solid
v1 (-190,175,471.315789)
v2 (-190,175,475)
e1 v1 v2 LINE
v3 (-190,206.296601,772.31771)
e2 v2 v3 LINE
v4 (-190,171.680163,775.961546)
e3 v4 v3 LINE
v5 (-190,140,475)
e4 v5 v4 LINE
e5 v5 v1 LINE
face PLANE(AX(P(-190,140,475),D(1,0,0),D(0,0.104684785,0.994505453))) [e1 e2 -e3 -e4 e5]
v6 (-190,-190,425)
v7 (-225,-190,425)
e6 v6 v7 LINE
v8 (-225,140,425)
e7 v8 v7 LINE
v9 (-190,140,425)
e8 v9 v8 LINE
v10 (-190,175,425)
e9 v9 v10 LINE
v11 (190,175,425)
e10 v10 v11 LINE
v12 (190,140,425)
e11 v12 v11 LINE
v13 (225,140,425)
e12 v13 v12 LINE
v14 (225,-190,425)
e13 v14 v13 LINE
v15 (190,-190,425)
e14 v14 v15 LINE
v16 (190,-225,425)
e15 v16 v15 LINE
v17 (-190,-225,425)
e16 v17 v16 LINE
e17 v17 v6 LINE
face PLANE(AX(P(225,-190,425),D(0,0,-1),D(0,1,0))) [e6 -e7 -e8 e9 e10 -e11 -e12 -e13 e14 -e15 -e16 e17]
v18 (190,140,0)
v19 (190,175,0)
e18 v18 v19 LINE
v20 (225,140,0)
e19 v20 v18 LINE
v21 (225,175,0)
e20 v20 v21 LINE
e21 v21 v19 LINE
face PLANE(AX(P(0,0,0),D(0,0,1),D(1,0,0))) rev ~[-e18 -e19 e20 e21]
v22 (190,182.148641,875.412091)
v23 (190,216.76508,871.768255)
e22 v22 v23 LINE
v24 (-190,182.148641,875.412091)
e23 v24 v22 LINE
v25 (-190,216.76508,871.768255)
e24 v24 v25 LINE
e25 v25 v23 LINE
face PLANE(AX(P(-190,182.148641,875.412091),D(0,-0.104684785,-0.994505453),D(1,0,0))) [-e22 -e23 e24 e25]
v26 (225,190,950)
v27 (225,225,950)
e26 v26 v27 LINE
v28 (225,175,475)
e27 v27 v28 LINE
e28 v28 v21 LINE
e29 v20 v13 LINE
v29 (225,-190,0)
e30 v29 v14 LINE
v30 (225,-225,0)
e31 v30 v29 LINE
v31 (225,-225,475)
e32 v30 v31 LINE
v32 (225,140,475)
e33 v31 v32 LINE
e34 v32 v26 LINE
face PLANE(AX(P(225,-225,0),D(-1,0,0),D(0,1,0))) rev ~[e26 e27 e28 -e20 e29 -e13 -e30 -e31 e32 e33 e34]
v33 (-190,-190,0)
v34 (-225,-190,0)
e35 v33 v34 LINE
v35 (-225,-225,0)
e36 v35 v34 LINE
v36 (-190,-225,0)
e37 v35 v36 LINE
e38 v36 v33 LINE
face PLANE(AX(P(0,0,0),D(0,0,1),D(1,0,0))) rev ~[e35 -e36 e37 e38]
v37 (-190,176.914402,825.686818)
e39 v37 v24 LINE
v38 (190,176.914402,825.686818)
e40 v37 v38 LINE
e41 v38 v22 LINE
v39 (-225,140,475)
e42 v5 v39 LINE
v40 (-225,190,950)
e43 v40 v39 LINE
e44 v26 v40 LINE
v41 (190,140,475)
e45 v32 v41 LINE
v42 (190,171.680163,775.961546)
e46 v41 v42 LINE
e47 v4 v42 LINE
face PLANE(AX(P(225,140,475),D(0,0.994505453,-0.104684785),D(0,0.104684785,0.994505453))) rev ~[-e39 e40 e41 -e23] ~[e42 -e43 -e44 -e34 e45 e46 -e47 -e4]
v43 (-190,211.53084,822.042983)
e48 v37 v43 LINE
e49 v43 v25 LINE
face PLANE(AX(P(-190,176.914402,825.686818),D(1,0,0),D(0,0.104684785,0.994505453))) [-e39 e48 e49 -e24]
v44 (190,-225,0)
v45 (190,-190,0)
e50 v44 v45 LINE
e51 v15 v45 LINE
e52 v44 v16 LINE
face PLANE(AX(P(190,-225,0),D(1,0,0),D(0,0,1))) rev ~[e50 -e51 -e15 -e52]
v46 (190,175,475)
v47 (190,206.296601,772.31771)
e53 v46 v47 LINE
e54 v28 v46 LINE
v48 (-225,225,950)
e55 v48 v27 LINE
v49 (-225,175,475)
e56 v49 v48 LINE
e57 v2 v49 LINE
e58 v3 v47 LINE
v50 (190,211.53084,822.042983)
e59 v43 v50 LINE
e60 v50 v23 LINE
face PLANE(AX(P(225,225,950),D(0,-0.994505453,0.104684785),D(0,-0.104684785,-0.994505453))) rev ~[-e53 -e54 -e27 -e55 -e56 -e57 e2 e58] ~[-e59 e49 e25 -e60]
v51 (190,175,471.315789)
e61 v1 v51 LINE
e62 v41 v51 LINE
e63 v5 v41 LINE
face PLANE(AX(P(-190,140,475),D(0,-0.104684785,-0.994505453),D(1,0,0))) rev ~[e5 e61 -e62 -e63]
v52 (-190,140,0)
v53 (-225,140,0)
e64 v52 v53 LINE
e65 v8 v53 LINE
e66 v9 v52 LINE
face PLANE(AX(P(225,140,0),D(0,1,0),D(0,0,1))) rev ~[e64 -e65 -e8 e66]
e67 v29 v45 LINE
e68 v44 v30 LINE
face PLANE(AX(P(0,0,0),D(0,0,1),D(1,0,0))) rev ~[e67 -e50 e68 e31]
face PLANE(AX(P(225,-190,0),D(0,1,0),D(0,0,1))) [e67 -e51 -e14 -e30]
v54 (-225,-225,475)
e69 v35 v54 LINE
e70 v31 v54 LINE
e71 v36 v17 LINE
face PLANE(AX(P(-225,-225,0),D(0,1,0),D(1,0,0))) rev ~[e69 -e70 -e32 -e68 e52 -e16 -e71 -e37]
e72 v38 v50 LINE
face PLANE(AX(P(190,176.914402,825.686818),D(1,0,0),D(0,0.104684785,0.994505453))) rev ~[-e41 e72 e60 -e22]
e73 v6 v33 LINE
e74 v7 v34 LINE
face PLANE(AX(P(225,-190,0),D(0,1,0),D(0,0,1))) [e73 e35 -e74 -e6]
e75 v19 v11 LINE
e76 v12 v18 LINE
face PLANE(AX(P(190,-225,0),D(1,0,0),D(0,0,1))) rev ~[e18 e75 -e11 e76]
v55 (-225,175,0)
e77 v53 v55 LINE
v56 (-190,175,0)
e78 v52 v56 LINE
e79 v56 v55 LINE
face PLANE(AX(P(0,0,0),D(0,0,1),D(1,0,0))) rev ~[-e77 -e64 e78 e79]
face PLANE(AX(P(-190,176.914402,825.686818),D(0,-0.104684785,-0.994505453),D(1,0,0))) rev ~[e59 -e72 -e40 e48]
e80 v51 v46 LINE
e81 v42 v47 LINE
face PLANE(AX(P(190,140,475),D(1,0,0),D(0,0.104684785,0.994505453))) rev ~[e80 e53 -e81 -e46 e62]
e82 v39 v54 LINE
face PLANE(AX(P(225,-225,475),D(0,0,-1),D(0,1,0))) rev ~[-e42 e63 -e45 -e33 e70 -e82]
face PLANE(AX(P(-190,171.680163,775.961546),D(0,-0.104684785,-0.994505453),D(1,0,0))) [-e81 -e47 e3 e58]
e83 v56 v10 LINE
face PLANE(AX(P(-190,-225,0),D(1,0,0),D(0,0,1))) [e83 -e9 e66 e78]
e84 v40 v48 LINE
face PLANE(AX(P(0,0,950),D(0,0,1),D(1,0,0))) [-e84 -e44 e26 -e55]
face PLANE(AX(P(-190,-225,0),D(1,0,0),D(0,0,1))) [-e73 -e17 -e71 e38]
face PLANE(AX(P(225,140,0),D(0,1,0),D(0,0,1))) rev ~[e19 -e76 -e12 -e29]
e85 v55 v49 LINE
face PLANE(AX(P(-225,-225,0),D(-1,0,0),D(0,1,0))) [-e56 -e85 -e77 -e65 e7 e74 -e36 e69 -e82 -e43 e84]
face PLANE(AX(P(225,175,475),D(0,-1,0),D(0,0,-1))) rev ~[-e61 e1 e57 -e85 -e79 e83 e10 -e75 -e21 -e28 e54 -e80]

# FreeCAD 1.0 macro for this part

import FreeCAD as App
import Part
import Sketcher
from FreeCAD import Vector
Q = App.Units.Quantity

doc = App.newDocument("Part")
body = doc.addObject("PartDesign::Body", "Body")

sketch1 = body.newObject("Sketcher::SketchObject", "Sketch")
sketch1.AttachmentSupport = (doc.getObject("XY_Plane"), [""])
sketch1.MapMode = "FlatFace"
sketch1.addGeometry([
    Part.LineSegment(Vector(-225, 225, 0), Vector(-225, -225, 0)),
    Part.LineSegment(Vector(-225, -225, 0), Vector(225, -225, 0)),
    Part.LineSegment(Vector(225, -225, 0), Vector(225, 225, 0)),
    Part.LineSegment(Vector(225, 225, 0), Vector(-225, 225, 0)),
], False)
sketch1.addConstraint([
    Sketcher.Constraint("Coincident", 0, 2, 1, 1),
    Sketcher.Constraint("Coincident", 1, 2, 2, 1),
    Sketcher.Constraint("Coincident", 2, 2, 3, 1),
    Sketcher.Constraint("Coincident", 3, 2, 0, 1),
    Sketcher.Constraint("Vertical", 0),
    Sketcher.Constraint("Horizontal", 1),
    Sketcher.Constraint("Vertical", 2),
    Sketcher.Constraint("Horizontal", 3),
    Sketcher.Constraint("Symmetric", 0, 2, 2, 2, -1, 1),
    Sketcher.Constraint("Equal", 3, 0),
    Sketcher.Constraint("DistanceX", 1, 1, 1, 2, Q("450 mm")),
])
pad1 = body.newObject("PartDesign::Pad", "Pad")
pad1.Profile = sketch1
pad1.Length = 950

sketch2 = body.newObject("Sketcher::SketchObject", "Sketch001")
sketch2.AttachmentSupport = (doc.getObject("YZ_Plane"), [""])
sketch2.MapMode = "FlatFace"
sketch2.AttachmentOffset = App.Placement(Vector(0, 0, 225), App.Rotation())
sketch2.addGeometry([
    Part.LineSegment(Vector(-225, 475, 0), Vector(140, 475, 0)),
    Part.LineSegment(Vector(140, 475, 0), Vector(190, 950, 0)),
    Part.LineSegment(Vector(190, 950, 0), Vector(-225, 950, 0)),
    Part.LineSegment(Vector(-225, 950, 0), Vector(-225, 475, 0)),
    Part.LineSegment(Vector(-190, 425, 0), Vector(-190, 0, 0)),
    Part.LineSegment(Vector(-190, 0, 0), Vector(140, 0, 0)),
    Part.LineSegment(Vector(140, 0, 0), Vector(140, 425, 0)),
    Part.LineSegment(Vector(140, 425, 0), Vector(-190, 425, 0)),
    Part.LineSegment(Vector(175, 0, 0), Vector(225, 0, 0)),
    Part.LineSegment(Vector(225, 0, 0), Vector(225, 950, 0)),
    Part.LineSegment(Vector(225, 950, 0), Vector(175, 475, 0)),
    Part.LineSegment(Vector(175, 475, 0), Vector(175, 0, 0)),
], False)
sketch2.addConstraint([
    Sketcher.Constraint("Coincident", 0, 2, 1, 1),
    Sketcher.Constraint("Coincident", 1, 2, 2, 1),
    Sketcher.Constraint("Coincident", 2, 2, 3, 1),
    Sketcher.Constraint("Coincident", 3, 2, 0, 1),
    Sketcher.Constraint("Coincident", 4, 2, 5, 1),
    Sketcher.Constraint("Coincident", 5, 2, 6, 1),
    Sketcher.Constraint("Coincident", 6, 2, 7, 1),
    Sketcher.Constraint("Coincident", 7, 2, 4, 1),
    Sketcher.Constraint("Coincident", 8, 2, 9, 1),
    Sketcher.Constraint("Coincident", 9, 2, 10, 1),
    Sketcher.Constraint("Coincident", 10, 2, 11, 1),
    Sketcher.Constraint("Coincident", 11, 2, 8, 1),
    Sketcher.Constraint("Horizontal", 0),
    Sketcher.Constraint("Horizontal", 2),
    Sketcher.Constraint("Vertical", 3),
    Sketcher.Constraint("Vertical", 4),
    Sketcher.Constraint("Horizontal", 5),
    Sketcher.Constraint("Vertical", 6),
    Sketcher.Constraint("Horizontal", 7),
    Sketcher.Constraint("Horizontal", 8),
    Sketcher.Constraint("Vertical", 9),
    Sketcher.Constraint("Vertical", 11),
    Sketcher.Constraint("Symmetric", 2, 2, 9, 2, -2),
    Sketcher.Constraint("PointOnObject", 4, 2, -1),
    Sketcher.Constraint("PointOnObject", 8, 2, -1),
    Sketcher.Constraint("Parallel", 1, 10),
    Sketcher.Constraint("Horizontal", 3, 2, 10, 2),
    Sketcher.Constraint("Vertical", 0, 2, 5, 2),
    Sketcher.Constraint("Equal", 3, 11),
    Sketcher.Constraint("DistanceX", 0, 1, 0, 2, Q("365 mm")),
    Sketcher.Constraint("DistanceX", 2, 2, 2, 1, Q("415 mm")),
    Sketcher.Constraint("DistanceX", 5, 1, 5, 2, Q("330 mm")),
    Sketcher.Constraint("DistanceY", 3, 2, 3, 1, Q("475 mm")),
    Sketcher.Constraint("DistanceY", 4, 2, 4, 1, Q("425 mm")),
    Sketcher.Constraint("DistanceX", -1, 1, 0, 2, Q("140 mm")),
])
pocket1 = body.newObject("PartDesign::Pocket", "Pocket")
pocket1.Profile = sketch2
pocket1.Type = "ThroughAll"

sketch3 = body.newObject("Sketcher::SketchObject", "Sketch002")
sketch3.AttachmentSupport = (doc.getObject("XZ_Plane"), [""])
sketch3.MapMode = "FlatFace"
sketch3.AttachmentOffset = App.Placement(Vector(0, 0, 225), App.Rotation())
sketch3.addGeometry([
    Part.LineSegment(Vector(-190, 425, 0), Vector(-190, 0, 0)),
    Part.LineSegment(Vector(-190, 0, 0), Vector(190, 0, 0)),
    Part.LineSegment(Vector(190, 0, 0), Vector(190, 425, 0)),
    Part.LineSegment(Vector(190, 425, 0), Vector(-190, 425, 0)),
], False)
sketch3.addConstraint([
    Sketcher.Constraint("Coincident", 0, 2, 1, 1),
    Sketcher.Constraint("Coincident", 1, 2, 2, 1),
    Sketcher.Constraint("Coincident", 2, 2, 3, 1),
    Sketcher.Constraint("Coincident", 3, 2, 0, 1),
    Sketcher.Constraint("Vertical", 0),
    Sketcher.Constraint("Horizontal", 1),
    Sketcher.Constraint("Vertical", 2),
    Sketcher.Constraint("Horizontal", 3),
    Sketcher.Constraint("Symmetric", 0, 2, 1, 2, -1, 1),
    Sketcher.Constraint("DistanceX", 1, 1, 1, 2, Q("380 mm")),
    Sketcher.Constraint("DistanceY", 0, 2, 0, 1, Q("425 mm")),
])
pocket2 = body.newObject("PartDesign::Pocket", "Pocket001")
pocket2.Profile = sketch3
pocket2.Type = "ThroughAll"

sketch4 = body.newObject("Sketcher::SketchObject", "Sketch003")
sketch4.Placement = App.Placement(Vector(0, 89.013699, -9.369863), App.Rotation(Vector(1, 0, 0), Vector(0, 0.104684785, 0.994505453), Vector(0, -0.994505453, 0.104684785), "ZXY"))
sketch4.addGeometry([
    Part.LineSegment(Vector(-190, 889.67029, 0), Vector(-190, 839.67029, 0)),
    Part.LineSegment(Vector(-190, 839.67029, 0), Vector(190, 839.67029, 0)),
    Part.LineSegment(Vector(190, 839.67029, 0), Vector(190, 889.67029, 0)),
    Part.LineSegment(Vector(190, 889.67029, 0), Vector(-190, 889.67029, 0)),
    Part.LineSegment(Vector(-190, 789.67029, 0), Vector(-190, 487.04596, 0)),
    Part.LineSegment(Vector(-190, 487.04596, 0), Vector(190, 487.04596, 0)),
    Part.LineSegment(Vector(190, 487.04596, 0), Vector(190, 789.67029, 0)),
    Part.LineSegment(Vector(190, 789.67029, 0), Vector(-190, 789.67029, 0)),
], False)
sketch4.addConstraint([
    Sketcher.Constraint("Coincident", 0, 2, 1, 1),
    Sketcher.Constraint("Coincident", 1, 2, 2, 1),
    Sketcher.Constraint("Coincident", 2, 2, 3, 1),
    Sketcher.Constraint("Coincident", 3, 2, 0, 1),
    Sketcher.Constraint("Coincident", 4, 2, 5, 1),
    Sketcher.Constraint("Coincident", 5, 2, 6, 1),
    Sketcher.Constraint("Coincident", 6, 2, 7, 1),
    Sketcher.Constraint("Coincident", 7, 2, 4, 1),
    Sketcher.Constraint("Vertical", 0),
    Sketcher.Constraint("Horizontal", 1),
    Sketcher.Constraint("Vertical", 2),
    Sketcher.Constraint("Horizontal", 3),
    Sketcher.Constraint("Vertical", 4),
    Sketcher.Constraint("Horizontal", 5),
    Sketcher.Constraint("Vertical", 6),
    Sketcher.Constraint("Horizontal", 7),
    Sketcher.Constraint("Vertical", 3, 2, 4, 2),
    Sketcher.Constraint("Vertical", 2, 2, 5, 2),
    Sketcher.Constraint("DistanceX", 1, 1, 1, 2, Q("380 mm")),
    Sketcher.Constraint("DistanceY", 0, 2, 0, 1, Q("50 mm")),
    Sketcher.Constraint("DistanceX", 0, 2, -1, 1, Q("190 mm")),
    Sketcher.Constraint("DistanceY", 6, 2, 1, 2, Q("50 mm")),
    Sketcher.Constraint("DistanceY", 4, 2, 4, 1, Q("302.624329 mm")),
    Sketcher.Constraint("DistanceY", -1, 1, 0, 2, Q("839.67029 mm")),
])
pocket3 = body.newObject("PartDesign::Pocket", "Pocket002")
pocket3.Profile = sketch4
pocket3.Type = "ThroughAll"

doc.recompute()
